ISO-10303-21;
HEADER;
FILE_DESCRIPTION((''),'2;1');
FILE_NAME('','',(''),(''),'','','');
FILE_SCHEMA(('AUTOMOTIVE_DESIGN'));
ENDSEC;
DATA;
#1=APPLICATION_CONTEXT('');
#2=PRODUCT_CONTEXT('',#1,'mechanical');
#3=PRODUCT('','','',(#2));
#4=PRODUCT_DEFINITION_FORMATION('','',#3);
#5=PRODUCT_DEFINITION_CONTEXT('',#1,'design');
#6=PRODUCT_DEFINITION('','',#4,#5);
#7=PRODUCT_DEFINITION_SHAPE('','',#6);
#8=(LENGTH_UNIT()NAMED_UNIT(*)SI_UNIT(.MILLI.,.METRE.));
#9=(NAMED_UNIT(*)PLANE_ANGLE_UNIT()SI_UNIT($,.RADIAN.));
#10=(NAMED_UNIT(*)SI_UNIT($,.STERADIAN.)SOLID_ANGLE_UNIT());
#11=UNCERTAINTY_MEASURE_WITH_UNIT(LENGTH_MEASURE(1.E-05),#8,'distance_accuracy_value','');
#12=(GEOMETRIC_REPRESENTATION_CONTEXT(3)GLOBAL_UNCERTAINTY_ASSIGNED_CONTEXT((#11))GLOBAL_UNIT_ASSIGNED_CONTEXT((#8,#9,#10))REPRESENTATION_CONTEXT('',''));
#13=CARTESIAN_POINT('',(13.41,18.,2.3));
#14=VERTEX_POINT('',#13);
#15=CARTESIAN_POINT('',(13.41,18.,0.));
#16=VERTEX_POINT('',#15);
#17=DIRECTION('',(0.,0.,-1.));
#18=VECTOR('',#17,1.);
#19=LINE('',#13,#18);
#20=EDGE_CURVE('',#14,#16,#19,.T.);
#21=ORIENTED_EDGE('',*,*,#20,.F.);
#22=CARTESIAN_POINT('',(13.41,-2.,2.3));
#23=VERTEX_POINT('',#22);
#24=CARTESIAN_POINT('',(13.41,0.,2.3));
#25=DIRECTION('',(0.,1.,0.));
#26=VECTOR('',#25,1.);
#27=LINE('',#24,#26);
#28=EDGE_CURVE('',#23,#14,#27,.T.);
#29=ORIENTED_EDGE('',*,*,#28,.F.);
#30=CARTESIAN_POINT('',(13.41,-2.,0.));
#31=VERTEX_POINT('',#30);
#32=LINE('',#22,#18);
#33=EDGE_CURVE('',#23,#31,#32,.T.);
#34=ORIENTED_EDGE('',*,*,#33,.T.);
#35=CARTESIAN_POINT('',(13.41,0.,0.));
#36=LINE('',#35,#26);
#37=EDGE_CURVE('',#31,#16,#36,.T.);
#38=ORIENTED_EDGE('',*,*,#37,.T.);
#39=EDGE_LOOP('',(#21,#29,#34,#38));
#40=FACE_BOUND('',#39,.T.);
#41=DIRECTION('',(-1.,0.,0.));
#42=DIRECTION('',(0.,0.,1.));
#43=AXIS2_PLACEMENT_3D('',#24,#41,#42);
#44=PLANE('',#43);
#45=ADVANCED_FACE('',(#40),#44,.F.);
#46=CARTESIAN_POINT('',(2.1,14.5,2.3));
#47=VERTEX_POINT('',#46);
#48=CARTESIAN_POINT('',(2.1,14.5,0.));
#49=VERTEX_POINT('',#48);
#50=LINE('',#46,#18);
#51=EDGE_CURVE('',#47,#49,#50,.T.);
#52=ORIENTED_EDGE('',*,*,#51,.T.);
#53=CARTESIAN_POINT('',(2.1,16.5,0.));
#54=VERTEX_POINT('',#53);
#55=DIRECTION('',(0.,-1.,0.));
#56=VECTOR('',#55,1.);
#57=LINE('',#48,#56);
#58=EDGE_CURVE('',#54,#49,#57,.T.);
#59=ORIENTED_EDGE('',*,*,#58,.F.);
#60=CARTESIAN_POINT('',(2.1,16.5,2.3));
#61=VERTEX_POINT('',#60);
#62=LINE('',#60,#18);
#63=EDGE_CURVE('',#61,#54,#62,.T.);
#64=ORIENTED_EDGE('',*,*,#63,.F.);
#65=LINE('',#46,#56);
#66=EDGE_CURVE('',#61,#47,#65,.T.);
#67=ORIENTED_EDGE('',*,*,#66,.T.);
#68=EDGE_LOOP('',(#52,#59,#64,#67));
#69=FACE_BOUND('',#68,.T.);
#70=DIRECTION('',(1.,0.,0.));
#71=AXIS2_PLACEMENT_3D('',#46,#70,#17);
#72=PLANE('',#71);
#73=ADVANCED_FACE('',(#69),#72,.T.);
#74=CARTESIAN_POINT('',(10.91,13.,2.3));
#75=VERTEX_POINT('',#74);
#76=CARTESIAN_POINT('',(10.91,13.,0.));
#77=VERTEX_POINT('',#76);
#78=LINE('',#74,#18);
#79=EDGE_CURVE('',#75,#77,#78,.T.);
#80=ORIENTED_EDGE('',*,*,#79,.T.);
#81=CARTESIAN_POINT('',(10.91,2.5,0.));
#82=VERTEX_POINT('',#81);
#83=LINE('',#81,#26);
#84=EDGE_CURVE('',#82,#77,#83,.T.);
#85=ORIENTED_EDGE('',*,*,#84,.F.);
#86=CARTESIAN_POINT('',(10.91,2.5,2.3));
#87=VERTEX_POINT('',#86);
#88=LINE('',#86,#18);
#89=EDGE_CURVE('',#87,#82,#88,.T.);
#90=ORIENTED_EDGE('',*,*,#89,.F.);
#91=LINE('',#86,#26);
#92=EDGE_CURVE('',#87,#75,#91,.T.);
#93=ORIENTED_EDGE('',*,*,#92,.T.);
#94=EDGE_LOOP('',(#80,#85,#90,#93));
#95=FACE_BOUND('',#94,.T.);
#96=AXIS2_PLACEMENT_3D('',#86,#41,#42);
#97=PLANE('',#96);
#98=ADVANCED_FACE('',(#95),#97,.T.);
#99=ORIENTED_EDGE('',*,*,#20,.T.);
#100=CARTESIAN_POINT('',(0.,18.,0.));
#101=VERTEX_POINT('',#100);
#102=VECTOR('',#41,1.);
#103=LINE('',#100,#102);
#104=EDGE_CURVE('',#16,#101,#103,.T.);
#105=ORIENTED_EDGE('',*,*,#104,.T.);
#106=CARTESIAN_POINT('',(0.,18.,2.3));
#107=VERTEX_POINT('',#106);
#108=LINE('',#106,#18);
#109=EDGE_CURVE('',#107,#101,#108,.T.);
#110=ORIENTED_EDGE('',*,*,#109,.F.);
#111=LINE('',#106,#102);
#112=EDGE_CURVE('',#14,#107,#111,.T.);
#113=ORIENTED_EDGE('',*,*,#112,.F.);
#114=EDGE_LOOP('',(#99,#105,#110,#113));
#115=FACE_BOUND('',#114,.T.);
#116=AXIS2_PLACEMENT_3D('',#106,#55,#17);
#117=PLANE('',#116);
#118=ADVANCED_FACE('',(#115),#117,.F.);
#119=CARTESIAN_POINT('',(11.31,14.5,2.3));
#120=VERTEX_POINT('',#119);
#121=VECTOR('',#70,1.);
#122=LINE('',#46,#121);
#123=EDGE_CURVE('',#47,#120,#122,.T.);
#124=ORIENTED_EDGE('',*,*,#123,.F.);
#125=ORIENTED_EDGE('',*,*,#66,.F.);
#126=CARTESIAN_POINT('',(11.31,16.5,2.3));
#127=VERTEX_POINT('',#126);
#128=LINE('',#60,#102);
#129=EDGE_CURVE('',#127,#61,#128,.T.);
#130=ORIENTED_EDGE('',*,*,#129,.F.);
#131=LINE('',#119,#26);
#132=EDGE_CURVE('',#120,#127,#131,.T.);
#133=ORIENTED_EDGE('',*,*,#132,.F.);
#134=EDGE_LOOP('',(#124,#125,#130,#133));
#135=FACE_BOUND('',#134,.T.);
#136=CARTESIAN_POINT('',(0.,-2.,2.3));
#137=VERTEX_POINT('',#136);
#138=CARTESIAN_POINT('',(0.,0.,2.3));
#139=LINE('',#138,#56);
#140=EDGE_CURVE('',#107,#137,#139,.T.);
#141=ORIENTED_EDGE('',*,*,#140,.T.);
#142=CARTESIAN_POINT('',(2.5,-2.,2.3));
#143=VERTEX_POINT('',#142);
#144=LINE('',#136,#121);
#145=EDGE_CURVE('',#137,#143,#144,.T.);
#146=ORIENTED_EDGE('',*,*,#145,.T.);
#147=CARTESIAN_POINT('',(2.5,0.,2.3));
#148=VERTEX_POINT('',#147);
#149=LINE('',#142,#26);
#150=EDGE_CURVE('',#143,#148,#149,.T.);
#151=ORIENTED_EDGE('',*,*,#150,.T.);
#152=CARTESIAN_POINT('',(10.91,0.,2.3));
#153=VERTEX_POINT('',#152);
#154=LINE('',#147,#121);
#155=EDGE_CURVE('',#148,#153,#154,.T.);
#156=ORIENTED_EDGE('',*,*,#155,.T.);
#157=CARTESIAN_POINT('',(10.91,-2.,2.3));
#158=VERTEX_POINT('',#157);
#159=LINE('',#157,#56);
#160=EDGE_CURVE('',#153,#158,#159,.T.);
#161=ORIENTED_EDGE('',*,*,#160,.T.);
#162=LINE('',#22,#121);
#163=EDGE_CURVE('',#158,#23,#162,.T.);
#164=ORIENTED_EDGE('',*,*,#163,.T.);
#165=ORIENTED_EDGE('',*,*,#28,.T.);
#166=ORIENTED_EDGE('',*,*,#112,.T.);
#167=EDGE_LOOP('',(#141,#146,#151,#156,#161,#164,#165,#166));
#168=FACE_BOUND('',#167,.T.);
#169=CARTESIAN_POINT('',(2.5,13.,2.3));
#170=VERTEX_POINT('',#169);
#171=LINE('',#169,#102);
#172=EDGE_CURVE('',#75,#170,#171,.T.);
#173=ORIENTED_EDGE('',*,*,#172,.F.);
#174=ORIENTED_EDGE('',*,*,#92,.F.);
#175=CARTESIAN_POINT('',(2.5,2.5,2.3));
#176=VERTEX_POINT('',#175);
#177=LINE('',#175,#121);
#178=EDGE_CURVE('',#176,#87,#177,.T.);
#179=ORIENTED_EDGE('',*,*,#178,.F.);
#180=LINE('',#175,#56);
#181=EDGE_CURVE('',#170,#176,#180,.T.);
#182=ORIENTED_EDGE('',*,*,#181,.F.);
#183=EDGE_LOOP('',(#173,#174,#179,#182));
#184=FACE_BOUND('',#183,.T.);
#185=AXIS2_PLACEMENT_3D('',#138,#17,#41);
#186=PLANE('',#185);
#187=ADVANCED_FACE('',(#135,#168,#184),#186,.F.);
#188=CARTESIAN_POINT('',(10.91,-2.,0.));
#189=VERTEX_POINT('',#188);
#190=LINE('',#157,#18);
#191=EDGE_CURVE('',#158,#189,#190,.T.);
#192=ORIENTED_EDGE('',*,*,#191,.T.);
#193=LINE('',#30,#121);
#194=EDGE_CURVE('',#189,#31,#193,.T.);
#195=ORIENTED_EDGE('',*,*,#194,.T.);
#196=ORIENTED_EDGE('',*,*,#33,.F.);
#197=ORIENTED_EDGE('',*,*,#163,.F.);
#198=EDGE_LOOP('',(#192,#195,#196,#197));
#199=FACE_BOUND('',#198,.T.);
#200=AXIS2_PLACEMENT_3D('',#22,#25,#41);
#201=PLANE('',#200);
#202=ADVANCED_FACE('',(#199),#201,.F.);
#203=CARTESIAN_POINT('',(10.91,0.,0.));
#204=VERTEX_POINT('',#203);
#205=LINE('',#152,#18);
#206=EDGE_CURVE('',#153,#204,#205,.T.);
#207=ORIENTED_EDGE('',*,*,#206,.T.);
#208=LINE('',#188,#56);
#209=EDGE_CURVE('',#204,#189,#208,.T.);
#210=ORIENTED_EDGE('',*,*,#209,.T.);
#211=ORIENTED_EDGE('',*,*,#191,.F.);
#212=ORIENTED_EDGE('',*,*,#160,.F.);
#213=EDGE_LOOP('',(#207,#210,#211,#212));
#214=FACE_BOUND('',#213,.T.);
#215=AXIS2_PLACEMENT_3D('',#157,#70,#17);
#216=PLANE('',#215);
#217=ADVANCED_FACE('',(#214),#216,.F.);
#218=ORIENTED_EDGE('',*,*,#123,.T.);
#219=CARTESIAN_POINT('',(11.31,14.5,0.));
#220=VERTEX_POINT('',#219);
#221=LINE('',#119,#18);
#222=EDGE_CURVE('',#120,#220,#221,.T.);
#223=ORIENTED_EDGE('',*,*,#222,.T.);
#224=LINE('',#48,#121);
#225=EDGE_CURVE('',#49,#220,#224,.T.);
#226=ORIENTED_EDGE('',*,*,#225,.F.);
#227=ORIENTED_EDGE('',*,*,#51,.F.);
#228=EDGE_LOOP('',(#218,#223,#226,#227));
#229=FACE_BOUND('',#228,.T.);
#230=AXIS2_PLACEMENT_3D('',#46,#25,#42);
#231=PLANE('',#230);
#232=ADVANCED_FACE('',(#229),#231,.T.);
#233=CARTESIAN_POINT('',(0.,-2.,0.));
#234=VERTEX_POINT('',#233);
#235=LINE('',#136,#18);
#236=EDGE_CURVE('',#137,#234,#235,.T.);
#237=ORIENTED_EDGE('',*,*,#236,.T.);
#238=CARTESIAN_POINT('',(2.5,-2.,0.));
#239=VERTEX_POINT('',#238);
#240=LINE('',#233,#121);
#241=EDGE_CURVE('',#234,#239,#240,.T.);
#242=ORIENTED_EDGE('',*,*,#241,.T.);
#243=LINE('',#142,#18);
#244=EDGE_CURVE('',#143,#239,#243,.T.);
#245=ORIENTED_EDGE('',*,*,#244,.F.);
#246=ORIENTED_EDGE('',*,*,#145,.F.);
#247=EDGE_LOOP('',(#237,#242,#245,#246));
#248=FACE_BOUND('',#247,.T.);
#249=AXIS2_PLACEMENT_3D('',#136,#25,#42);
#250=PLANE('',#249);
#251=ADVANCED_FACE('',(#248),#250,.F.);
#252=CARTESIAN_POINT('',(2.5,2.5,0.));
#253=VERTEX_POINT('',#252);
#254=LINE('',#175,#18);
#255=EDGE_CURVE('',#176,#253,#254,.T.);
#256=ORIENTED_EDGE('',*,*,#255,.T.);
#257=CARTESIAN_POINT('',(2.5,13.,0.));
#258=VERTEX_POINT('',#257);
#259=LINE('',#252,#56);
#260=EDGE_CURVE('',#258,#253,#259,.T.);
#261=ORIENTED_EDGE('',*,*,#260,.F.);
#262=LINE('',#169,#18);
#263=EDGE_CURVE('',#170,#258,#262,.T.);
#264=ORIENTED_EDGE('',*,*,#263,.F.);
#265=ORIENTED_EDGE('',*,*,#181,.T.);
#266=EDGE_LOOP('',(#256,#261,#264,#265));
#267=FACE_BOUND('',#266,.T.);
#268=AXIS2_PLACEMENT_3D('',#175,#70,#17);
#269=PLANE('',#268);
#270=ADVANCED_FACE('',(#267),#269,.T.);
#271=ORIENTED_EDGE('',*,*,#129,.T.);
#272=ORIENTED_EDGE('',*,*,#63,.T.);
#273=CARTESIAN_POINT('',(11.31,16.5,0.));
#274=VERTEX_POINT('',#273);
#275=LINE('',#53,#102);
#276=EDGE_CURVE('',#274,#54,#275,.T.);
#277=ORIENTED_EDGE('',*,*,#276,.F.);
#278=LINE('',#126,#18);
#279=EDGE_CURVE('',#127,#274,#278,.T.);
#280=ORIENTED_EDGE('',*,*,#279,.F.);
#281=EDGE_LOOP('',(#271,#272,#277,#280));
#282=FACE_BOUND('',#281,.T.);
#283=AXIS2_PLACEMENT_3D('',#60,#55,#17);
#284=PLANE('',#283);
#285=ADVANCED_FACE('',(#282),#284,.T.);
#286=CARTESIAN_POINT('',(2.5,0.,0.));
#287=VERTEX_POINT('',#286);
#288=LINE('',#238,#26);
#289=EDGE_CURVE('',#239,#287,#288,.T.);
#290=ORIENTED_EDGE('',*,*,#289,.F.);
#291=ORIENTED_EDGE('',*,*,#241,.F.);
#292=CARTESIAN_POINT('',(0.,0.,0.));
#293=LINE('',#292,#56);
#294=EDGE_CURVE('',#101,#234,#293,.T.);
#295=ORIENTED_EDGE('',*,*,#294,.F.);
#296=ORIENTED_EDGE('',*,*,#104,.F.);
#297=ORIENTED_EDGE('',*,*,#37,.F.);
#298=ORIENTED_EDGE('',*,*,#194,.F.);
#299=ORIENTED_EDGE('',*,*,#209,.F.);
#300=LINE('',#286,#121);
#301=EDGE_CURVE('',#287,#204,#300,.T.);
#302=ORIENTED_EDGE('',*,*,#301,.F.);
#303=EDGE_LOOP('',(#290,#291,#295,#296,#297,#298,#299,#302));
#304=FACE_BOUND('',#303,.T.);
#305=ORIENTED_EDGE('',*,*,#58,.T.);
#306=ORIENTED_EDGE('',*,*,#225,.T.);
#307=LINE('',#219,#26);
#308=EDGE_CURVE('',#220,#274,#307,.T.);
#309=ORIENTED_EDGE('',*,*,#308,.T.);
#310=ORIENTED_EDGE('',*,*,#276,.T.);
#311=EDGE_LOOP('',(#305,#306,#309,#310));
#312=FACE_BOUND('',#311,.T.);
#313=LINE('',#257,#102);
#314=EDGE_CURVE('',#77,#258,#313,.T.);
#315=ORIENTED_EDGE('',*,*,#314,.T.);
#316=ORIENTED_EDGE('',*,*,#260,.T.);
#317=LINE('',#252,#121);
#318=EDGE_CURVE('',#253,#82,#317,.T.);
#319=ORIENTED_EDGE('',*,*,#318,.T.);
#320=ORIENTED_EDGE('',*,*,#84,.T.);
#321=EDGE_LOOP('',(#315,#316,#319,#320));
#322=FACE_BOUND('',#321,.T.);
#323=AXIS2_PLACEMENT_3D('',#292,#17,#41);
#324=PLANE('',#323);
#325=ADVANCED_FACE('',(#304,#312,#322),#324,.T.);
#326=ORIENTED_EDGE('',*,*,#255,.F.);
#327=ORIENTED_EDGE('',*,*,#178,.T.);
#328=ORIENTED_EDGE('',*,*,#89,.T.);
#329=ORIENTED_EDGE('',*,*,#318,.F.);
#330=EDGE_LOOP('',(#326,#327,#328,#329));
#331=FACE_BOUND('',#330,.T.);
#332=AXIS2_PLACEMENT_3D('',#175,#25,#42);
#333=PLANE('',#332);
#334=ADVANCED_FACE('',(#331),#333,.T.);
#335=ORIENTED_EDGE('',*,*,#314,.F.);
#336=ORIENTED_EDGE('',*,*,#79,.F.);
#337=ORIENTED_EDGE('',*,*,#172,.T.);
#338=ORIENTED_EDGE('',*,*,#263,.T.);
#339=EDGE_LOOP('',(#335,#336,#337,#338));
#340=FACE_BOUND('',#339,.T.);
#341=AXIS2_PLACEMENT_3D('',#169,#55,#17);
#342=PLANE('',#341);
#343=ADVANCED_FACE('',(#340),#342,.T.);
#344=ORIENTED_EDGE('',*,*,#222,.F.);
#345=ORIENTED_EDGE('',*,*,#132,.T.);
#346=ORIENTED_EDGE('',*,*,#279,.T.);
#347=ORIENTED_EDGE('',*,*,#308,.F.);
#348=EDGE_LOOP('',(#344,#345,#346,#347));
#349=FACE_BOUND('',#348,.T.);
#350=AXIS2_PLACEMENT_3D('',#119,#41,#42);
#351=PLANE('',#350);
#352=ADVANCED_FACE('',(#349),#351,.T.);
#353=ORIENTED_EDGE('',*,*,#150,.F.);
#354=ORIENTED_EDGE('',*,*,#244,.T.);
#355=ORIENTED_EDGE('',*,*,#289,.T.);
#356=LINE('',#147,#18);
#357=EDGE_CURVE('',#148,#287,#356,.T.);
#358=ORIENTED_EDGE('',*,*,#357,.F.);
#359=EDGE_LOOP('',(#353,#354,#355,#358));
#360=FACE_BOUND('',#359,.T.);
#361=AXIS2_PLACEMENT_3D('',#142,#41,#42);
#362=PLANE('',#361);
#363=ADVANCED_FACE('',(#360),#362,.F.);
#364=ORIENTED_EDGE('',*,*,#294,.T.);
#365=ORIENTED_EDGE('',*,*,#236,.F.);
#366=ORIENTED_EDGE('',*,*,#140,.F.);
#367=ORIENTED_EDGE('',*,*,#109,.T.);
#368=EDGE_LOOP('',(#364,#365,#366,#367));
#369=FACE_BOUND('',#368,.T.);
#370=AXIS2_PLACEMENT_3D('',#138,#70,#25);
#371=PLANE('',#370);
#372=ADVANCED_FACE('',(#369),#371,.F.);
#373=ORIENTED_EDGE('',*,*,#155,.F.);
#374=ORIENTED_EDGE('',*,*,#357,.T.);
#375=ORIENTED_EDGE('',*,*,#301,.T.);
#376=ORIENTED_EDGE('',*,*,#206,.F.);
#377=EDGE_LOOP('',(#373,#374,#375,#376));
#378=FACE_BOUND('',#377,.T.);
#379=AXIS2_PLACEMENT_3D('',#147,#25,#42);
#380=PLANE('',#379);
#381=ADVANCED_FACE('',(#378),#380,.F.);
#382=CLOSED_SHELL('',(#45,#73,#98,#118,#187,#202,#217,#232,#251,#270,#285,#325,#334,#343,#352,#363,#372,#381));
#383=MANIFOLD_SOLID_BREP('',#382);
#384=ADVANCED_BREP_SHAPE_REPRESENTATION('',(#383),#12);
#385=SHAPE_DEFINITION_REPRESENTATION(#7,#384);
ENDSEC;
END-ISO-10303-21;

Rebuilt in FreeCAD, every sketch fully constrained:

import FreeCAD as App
import Part
import Sketcher

V = App.Vector

doc = App.newDocument("Part")
body = doc.addObject("PartDesign::Body", "Body")

sketch1 = doc.addObject("Sketcher::SketchObject", "Sketch")
body.addObject(sketch1)
sketch1.AttachmentSupport = (doc.XY_Plane, [""])
sketch1.MapMode = "FlatFace"
sketch1.addGeometry([
    Part.LineSegment(V(0, -2, 0), V(2.5, -2, 0)),
    Part.LineSegment(V(2.5, -2, 0), V(2.5, 0, 0)),
    Part.LineSegment(V(2.5, 0, 0), V(10.9, 0, 0)),
    Part.LineSegment(V(10.9, 0, 0), V(10.9, -2, 0)),
    Part.LineSegment(V(10.9, -2, 0), V(13.4, -2, 0)),
    Part.LineSegment(V(13.4, -2, 0), V(13.4, 18, 0)),
    Part.LineSegment(V(13.4, 18, 0), V(0, 18, 0)),
    Part.LineSegment(V(0, 18, 0), V(0, -2, 0)),
    Part.LineSegment(V(10.9, 2.5, 0), V(2.5, 2.5, 0)),
    Part.LineSegment(V(2.5, 2.5, 0), V(2.5, 13, 0)),
    Part.LineSegment(V(2.5, 13, 0), V(10.9, 13, 0)),
    Part.LineSegment(V(10.9, 13, 0), V(10.9, 2.5, 0)),
    Part.LineSegment(V(11.3, 14.5, 0), V(2.1, 14.5, 0)),
    Part.LineSegment(V(2.1, 14.5, 0), V(2.1, 16.5, 0)),
    Part.LineSegment(V(2.1, 16.5, 0), V(11.3, 16.5, 0)),
    Part.LineSegment(V(11.3, 16.5, 0), V(11.3, 14.5, 0)),
], False)
sketch1.addConstraint([
    Sketcher.Constraint("Coincident", 0, 2, 1, 1),
    Sketcher.Constraint("Coincident", 1, 2, 2, 1),
    Sketcher.Constraint("Coincident", 2, 2, 3, 1),
    Sketcher.Constraint("Coincident", 3, 2, 4, 1),
    Sketcher.Constraint("Coincident", 4, 2, 5, 1),
    Sketcher.Constraint("Coincident", 5, 2, 6, 1),
    Sketcher.Constraint("Coincident", 6, 2, 7, 1),
    Sketcher.Constraint("Coincident", 7, 2, 0, 1),
    Sketcher.Constraint("Coincident", 8, 2, 9, 1),
    Sketcher.Constraint("Coincident", 9, 2, 10, 1),
    Sketcher.Constraint("Coincident", 10, 2, 11, 1),
    Sketcher.Constraint("Coincident", 11, 2, 8, 1),
    Sketcher.Constraint("Coincident", 12, 2, 13, 1),
    Sketcher.Constraint("Coincident", 13, 2, 14, 1),
    Sketcher.Constraint("Coincident", 14, 2, 15, 1),
    Sketcher.Constraint("Coincident", 15, 2, 12, 1),
    Sketcher.Constraint("Horizontal", 0),
    Sketcher.Constraint("Vertical", 1),
    Sketcher.Constraint("Horizontal", 2),
    Sketcher.Constraint("Vertical", 3),
    Sketcher.Constraint("Horizontal", 4),
    Sketcher.Constraint("Vertical", 5),
    Sketcher.Constraint("Horizontal", 6),
    Sketcher.Constraint("Vertical", 7),
    Sketcher.Constraint("Horizontal", 8),
    Sketcher.Constraint("Vertical", 9),
    Sketcher.Constraint("Horizontal", 10),
    Sketcher.Constraint("Vertical", 11),
    Sketcher.Constraint("Horizontal", 12),
    Sketcher.Constraint("Vertical", 13),
    Sketcher.Constraint("Horizontal", 14),
    Sketcher.Constraint("Vertical", 15),
    Sketcher.Constraint("PointOnObject", 1, 2, -1),
    Sketcher.Constraint("PointOnObject", 6, 2, -2),
    Sketcher.Constraint("Horizontal", 0, 2, 3, 2),
    Sketcher.Constraint("Vertical", 1, 2, 8, 2),
    Sketcher.Constraint("Vertical", 3, 2, 10, 2),
    Sketcher.Constraint("Equal", 0, 4),
    Sketcher.Constraint("Equal", 3, 13),
    Sketcher.Constraint("DistanceY", 1, 1, 1, 2, 2.0),
    Sketcher.Constraint("DistanceY", 5, 1, 5, 2, 20.0),
    Sketcher.Constraint("DistanceX", 0, 1, 0, 2, 2.5),
    Sketcher.Constraint("DistanceY", 9, 1, 9, 2, 10.5),
    Sketcher.Constraint("DistanceY", -1, 1, 9, 2, 13.0),
    Sketcher.Constraint("DistanceY", 8, 2, 12, 2, 12.0),
    Sketcher.Constraint("DistanceX", 2, 1, 2, 2, 8.41),
    Sketcher.Constraint("DistanceX", 12, 2, 12, 1, 9.21),
    Sketcher.Constraint("DistanceX", -1, 1, 12, 2, 2.1),
])
pad1 = doc.addObject("PartDesign::Pad", "Pad")
body.addObject(pad1)
pad1.Profile = sketch1
pad1.Length = 2.3

doc.recompute()
